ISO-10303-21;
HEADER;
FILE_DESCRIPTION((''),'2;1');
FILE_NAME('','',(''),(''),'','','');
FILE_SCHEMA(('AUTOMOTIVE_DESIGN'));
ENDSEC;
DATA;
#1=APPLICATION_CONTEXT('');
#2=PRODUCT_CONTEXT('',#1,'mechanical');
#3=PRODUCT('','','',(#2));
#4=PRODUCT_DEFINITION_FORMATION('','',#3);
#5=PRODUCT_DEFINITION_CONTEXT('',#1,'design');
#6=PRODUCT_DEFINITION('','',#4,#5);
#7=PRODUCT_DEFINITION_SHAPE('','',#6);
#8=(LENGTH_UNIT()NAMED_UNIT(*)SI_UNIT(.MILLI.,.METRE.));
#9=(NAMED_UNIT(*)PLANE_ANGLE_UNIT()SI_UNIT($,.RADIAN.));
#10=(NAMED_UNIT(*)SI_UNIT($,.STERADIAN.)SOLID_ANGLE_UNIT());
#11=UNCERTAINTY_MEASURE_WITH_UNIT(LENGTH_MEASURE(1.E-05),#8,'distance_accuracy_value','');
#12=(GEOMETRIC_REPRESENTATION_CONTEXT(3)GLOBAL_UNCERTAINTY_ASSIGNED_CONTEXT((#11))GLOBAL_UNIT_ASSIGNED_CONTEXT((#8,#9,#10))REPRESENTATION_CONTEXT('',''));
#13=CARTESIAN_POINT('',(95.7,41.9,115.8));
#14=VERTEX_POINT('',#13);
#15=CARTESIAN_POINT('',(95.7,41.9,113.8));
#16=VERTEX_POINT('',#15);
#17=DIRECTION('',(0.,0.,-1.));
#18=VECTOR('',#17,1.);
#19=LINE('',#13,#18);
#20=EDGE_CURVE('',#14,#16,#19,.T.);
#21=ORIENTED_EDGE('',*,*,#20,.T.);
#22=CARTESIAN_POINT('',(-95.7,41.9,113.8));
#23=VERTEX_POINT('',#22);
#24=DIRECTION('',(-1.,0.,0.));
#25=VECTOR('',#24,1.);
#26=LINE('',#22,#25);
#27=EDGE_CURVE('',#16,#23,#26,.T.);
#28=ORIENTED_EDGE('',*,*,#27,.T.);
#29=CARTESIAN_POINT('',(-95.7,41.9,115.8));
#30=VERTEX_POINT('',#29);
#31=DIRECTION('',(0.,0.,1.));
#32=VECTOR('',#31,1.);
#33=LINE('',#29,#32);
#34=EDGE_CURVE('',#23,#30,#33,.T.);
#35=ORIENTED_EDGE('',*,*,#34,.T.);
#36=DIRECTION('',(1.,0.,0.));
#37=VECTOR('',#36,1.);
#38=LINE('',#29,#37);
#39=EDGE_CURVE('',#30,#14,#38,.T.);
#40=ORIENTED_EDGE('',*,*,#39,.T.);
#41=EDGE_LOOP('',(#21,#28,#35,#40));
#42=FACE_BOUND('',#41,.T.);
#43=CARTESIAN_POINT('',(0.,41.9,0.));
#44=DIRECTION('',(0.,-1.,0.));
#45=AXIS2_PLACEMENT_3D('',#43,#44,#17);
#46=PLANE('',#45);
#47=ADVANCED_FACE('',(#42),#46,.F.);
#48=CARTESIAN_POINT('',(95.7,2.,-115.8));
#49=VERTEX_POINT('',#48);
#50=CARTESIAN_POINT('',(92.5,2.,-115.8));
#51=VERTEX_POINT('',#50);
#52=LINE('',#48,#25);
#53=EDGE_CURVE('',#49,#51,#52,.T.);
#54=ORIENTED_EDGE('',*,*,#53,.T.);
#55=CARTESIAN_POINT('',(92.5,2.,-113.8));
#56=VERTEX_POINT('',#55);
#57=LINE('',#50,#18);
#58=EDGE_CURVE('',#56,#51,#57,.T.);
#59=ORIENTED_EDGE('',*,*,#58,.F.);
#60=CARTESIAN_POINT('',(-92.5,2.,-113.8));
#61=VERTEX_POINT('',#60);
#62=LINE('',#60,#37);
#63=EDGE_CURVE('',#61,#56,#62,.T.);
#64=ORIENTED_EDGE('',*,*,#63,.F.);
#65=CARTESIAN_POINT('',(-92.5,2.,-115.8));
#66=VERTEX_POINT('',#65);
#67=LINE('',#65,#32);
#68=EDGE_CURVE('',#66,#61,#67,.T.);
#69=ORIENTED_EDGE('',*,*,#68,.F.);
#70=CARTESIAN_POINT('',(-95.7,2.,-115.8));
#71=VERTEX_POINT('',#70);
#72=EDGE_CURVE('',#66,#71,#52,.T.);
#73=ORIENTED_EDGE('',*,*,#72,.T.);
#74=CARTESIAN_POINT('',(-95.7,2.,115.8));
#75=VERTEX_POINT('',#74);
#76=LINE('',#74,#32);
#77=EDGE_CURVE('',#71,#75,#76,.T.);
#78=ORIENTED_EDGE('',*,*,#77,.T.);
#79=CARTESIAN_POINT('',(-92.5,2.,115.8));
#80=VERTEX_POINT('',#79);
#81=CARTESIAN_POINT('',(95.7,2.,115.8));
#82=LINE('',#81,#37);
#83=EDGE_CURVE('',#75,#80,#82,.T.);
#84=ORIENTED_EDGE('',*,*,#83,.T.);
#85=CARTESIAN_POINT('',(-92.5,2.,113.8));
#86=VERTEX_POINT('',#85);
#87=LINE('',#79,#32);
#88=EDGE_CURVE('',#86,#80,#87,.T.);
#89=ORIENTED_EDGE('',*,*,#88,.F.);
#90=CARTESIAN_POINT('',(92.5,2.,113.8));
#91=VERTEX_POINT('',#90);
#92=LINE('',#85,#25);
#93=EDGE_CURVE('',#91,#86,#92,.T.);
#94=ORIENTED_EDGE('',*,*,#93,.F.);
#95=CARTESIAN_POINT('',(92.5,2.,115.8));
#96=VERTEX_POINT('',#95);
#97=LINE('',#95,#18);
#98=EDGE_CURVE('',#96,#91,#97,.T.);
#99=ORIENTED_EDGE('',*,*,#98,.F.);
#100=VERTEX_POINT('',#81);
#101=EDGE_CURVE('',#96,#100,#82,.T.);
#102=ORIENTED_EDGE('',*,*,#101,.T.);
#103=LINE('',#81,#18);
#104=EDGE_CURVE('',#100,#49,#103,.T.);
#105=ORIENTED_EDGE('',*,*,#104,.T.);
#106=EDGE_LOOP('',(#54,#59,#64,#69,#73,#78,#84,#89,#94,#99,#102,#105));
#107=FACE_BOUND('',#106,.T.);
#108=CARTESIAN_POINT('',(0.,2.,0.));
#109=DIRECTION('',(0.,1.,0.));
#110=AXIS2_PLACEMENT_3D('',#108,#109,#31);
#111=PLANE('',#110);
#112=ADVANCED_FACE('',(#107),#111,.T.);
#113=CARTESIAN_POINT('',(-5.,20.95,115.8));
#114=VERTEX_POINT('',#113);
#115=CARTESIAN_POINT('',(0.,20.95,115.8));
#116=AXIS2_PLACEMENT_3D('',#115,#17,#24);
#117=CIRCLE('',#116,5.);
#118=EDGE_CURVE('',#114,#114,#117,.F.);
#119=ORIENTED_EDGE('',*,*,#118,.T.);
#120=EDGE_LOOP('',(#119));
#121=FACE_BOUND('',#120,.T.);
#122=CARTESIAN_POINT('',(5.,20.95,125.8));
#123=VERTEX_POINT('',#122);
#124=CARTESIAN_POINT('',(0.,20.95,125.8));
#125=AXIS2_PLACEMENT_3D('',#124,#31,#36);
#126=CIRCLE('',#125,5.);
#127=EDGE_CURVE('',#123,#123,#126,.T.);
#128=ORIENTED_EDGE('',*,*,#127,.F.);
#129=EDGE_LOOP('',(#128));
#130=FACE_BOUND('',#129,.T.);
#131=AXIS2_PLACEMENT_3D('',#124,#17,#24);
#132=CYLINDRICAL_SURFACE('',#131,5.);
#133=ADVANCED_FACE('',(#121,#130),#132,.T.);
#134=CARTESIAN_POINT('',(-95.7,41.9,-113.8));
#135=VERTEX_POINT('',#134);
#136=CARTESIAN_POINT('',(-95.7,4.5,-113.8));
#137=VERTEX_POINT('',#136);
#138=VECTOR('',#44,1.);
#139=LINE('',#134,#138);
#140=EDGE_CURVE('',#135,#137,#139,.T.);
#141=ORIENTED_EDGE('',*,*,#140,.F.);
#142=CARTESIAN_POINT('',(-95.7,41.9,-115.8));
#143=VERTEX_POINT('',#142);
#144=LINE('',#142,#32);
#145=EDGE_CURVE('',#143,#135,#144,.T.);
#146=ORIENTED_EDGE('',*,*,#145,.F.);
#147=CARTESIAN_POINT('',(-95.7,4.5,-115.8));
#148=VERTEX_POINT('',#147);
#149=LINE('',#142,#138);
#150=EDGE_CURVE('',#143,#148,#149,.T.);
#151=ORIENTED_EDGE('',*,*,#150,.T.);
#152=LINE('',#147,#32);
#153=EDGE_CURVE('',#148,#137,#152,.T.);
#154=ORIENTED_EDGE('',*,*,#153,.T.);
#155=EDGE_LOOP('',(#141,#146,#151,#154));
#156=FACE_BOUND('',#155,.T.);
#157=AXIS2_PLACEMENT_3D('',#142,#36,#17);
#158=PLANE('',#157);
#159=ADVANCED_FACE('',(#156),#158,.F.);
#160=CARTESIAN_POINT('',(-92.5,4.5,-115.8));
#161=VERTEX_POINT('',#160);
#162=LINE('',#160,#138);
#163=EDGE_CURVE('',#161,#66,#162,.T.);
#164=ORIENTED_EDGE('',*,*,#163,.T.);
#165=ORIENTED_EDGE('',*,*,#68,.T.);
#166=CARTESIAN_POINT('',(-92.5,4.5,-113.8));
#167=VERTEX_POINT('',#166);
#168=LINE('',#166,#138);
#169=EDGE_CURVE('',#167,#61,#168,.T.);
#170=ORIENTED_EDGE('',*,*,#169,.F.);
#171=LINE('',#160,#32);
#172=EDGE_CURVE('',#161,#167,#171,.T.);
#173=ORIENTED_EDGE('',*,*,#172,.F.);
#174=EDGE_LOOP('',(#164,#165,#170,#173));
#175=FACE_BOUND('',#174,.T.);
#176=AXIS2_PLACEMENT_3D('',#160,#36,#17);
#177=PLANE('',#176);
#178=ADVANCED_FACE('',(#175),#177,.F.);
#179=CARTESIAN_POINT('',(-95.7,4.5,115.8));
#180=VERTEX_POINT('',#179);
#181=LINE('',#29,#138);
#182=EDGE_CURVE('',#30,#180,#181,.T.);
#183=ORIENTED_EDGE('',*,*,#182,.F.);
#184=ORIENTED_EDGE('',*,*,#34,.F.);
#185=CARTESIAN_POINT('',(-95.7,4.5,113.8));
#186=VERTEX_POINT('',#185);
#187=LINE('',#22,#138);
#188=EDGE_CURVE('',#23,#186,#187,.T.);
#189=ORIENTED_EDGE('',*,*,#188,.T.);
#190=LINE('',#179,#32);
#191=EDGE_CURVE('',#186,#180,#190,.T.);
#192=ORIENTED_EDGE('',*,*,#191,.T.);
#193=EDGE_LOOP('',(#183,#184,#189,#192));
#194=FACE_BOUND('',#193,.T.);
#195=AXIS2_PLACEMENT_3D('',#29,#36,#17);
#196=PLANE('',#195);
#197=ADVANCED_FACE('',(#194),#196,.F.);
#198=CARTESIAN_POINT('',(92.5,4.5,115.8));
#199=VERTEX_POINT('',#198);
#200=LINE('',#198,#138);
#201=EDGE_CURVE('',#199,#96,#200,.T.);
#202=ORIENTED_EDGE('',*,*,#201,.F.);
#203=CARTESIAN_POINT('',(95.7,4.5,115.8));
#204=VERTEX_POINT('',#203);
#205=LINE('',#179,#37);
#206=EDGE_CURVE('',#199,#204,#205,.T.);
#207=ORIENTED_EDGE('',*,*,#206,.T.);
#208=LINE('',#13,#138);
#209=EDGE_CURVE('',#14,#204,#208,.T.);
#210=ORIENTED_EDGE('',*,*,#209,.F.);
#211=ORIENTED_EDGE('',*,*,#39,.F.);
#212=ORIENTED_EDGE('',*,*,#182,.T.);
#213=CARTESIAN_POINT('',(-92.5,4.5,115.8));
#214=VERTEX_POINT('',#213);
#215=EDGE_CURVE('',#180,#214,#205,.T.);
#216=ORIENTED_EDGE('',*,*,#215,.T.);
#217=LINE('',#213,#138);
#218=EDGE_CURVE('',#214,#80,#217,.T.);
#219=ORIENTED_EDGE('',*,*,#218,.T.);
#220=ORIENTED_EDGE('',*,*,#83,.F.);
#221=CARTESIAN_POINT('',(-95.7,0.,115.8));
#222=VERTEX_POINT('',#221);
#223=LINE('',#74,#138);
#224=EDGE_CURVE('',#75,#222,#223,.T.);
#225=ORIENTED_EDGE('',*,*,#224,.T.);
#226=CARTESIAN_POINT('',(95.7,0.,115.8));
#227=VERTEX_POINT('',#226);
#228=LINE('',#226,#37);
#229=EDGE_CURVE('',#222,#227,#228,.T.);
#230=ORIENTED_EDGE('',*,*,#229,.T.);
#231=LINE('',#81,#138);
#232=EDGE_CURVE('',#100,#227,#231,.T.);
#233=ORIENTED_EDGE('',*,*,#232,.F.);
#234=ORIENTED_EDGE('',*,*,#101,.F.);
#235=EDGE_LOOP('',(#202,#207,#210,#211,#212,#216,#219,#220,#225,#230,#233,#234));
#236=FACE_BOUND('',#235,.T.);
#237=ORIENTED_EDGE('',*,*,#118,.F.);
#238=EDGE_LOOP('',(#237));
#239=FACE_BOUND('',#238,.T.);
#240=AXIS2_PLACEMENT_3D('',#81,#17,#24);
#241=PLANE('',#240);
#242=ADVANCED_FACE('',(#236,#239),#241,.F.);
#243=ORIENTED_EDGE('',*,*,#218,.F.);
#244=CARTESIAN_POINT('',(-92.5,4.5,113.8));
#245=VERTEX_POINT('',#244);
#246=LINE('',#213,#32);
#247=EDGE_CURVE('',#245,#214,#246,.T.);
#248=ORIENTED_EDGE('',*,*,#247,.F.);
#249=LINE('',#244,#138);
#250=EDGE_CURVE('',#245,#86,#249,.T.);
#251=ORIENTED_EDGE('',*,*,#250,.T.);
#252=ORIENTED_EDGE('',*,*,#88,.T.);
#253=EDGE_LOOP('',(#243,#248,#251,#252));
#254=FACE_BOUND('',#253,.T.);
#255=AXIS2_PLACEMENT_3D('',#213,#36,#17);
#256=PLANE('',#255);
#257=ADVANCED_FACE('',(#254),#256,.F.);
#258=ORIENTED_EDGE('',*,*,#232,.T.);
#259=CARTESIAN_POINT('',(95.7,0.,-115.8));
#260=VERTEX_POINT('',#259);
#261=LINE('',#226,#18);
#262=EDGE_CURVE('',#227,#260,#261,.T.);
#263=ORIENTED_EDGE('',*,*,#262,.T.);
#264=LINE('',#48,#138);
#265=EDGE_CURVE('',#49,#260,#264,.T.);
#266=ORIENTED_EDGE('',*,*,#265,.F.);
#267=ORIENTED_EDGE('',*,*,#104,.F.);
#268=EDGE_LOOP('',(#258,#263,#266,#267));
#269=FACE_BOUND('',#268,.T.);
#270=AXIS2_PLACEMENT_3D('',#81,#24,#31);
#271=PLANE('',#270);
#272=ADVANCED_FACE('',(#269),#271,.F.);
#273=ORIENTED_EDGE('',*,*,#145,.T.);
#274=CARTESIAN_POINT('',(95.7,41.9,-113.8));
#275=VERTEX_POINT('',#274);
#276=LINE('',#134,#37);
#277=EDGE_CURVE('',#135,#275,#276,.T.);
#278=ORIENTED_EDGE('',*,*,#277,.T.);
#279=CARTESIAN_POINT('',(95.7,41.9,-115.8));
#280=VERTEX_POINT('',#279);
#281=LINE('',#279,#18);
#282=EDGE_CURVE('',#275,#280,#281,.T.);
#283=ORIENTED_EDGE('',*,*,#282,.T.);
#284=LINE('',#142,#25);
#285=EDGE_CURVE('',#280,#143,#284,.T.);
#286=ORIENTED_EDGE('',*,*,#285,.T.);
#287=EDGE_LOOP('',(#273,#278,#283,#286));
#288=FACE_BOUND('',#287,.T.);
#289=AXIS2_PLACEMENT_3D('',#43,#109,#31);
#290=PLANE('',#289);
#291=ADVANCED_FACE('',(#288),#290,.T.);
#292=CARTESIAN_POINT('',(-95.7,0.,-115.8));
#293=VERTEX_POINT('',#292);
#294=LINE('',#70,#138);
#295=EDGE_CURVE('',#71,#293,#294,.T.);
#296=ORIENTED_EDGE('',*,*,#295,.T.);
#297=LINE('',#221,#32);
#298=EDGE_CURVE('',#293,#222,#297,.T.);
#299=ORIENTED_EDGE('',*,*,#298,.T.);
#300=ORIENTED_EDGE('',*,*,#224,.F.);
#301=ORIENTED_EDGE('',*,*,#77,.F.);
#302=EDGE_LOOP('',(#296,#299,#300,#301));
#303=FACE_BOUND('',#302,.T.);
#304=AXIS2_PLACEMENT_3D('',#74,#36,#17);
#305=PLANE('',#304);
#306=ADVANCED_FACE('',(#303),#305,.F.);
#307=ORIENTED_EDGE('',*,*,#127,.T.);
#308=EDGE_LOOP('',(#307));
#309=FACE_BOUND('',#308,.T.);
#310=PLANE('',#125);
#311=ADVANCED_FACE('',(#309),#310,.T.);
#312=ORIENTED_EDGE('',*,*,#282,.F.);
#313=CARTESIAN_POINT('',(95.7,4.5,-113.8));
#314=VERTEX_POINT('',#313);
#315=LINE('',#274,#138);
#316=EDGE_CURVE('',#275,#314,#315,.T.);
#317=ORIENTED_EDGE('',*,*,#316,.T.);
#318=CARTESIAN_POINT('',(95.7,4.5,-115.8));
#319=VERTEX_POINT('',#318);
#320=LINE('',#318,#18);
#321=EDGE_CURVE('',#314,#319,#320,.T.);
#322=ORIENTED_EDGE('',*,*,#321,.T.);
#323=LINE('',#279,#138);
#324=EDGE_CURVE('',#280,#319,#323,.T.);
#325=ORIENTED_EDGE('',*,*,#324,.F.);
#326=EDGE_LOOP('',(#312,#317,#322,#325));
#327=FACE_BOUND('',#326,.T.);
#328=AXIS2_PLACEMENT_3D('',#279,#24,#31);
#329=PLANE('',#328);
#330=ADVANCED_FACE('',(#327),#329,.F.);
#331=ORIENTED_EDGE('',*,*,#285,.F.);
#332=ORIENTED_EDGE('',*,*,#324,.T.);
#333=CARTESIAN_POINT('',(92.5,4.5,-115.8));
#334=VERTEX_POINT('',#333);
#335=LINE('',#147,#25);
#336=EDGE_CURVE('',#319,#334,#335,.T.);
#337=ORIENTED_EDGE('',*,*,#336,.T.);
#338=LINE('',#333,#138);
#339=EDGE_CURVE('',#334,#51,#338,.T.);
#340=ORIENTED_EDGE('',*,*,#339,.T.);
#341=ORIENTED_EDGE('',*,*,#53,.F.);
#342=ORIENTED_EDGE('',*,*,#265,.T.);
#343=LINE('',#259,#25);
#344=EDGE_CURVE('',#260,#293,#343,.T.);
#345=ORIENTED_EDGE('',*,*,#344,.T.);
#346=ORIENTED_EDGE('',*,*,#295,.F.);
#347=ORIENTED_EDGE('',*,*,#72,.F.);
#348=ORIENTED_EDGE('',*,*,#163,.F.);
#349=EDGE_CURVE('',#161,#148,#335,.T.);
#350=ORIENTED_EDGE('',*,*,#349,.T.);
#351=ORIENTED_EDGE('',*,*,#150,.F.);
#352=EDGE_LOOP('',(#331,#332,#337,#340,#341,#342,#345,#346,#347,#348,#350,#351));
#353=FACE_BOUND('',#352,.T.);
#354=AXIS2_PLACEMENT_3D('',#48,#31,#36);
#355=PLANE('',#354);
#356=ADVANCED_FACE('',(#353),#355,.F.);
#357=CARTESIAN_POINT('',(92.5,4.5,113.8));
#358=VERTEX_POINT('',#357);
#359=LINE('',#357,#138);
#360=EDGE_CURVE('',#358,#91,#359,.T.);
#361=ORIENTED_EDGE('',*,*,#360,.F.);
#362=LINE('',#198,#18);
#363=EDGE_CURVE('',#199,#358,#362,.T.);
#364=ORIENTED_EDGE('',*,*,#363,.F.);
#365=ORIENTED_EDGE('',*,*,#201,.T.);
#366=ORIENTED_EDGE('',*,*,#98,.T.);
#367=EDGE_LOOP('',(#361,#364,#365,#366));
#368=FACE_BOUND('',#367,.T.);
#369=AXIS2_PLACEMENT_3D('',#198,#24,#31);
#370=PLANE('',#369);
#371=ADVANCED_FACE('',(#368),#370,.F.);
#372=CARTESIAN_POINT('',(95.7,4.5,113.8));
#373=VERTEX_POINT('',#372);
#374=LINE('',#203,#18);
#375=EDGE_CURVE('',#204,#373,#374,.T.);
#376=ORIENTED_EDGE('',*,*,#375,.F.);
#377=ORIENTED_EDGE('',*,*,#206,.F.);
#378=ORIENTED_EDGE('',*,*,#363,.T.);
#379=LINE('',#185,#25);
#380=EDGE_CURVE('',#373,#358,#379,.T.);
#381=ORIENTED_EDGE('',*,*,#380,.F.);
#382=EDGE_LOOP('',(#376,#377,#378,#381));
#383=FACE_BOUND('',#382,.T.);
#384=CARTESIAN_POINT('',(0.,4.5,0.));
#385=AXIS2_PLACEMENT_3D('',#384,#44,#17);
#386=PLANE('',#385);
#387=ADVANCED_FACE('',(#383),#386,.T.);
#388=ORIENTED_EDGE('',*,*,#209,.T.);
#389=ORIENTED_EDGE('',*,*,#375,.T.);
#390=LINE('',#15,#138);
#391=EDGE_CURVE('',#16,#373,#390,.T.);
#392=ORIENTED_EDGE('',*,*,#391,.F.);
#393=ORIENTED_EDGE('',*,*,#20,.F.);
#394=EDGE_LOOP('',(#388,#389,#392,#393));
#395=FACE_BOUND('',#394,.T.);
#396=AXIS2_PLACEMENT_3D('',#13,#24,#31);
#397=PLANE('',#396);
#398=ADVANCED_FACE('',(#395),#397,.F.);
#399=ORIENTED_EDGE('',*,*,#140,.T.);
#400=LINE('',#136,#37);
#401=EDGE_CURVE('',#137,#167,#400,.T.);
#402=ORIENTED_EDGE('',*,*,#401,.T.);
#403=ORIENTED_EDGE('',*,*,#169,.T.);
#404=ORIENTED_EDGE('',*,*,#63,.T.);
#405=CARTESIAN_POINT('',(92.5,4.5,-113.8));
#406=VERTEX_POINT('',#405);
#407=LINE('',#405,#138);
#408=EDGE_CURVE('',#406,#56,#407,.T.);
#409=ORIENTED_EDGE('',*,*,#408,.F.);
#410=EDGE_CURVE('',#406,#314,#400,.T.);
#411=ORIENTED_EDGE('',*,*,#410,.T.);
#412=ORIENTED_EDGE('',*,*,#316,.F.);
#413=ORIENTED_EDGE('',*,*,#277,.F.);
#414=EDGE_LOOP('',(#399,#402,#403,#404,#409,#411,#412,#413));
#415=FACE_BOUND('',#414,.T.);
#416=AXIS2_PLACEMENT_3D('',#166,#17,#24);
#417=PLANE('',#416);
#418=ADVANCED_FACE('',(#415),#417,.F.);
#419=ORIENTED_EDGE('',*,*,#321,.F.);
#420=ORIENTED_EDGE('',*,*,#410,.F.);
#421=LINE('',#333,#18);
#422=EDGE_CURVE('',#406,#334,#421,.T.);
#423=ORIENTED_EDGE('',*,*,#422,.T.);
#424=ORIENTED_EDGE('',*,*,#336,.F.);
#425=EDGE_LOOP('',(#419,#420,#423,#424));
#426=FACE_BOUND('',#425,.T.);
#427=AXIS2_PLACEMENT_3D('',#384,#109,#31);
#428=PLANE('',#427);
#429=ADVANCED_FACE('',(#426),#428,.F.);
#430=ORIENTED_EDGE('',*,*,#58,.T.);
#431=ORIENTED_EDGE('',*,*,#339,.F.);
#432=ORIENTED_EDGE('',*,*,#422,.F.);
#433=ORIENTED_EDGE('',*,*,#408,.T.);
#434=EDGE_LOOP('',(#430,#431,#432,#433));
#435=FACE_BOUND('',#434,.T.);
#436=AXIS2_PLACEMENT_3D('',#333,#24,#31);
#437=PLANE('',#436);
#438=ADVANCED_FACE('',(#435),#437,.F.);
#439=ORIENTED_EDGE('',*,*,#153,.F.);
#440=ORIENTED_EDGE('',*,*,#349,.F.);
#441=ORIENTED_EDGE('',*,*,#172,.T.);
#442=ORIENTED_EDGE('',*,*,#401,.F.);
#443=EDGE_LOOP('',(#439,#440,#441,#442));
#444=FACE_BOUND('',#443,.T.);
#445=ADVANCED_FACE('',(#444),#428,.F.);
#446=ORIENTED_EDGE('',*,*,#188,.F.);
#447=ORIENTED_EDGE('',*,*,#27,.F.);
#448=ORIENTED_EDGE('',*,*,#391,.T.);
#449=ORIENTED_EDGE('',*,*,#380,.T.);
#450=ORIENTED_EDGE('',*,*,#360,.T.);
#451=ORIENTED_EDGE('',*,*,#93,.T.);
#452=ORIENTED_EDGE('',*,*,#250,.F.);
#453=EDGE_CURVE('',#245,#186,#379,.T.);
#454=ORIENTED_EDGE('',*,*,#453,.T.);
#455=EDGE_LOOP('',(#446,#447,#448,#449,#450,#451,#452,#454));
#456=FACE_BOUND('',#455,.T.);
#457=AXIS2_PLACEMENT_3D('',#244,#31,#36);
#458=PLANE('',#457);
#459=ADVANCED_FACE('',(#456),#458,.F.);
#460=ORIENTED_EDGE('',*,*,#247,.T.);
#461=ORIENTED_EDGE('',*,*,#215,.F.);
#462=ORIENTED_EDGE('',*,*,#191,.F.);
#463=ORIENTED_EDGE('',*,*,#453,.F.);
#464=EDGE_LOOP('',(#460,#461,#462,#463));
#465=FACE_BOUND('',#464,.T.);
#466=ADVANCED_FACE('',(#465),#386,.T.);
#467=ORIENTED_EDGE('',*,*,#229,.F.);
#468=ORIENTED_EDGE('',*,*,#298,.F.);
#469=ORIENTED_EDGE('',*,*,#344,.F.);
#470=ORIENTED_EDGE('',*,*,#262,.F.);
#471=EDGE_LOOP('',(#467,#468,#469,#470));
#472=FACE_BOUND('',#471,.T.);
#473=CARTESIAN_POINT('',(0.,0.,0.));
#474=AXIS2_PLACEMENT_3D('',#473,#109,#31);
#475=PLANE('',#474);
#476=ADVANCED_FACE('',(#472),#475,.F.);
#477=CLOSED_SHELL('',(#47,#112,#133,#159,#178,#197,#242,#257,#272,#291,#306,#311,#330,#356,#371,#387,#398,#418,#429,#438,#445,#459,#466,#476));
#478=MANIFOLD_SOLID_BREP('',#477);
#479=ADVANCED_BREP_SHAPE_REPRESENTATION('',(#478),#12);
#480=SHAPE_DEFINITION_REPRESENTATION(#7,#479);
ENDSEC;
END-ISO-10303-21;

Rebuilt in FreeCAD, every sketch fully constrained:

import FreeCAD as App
import Part
import Sketcher
Q = App.Units.Quantity


def add_polygon(sketch, points):
    """Adds a closed chain of lines whose ends are joined by coincident constraints."""
    first, n = sketch.GeometryCount, len(points)
    for a, b in zip(points, points[1:] + points[:1]):
        sketch.addGeometry(Part.LineSegment(App.Vector(*a, 0), App.Vector(*b, 0)), False)
    for i in range(n):
        sketch.addConstraint(Sketcher.Constraint("Coincident", first + i, 2, first + (i + 1) % n, 1))

doc = App.newDocument("Part")
body = doc.addObject("PartDesign::Body", "Body")

# Sketch on XZ plane
sketch1 = body.newObject("Sketcher::SketchObject", "Sketch")
sketch1.AttachmentSupport = (doc.getObject("XZ_Plane"), [""])
sketch1.MapMode = "FlatFace"
add_polygon(sketch1, [(-96, -116), (-96, 116), (96, 116), (96, -116)])  # lines 0-3
sketch1.addConstraint([
    Sketcher.Constraint("Vertical", 0),
    Sketcher.Constraint("Horizontal", 1),
    Sketcher.Constraint("Vertical", 2),
    Sketcher.Constraint("Horizontal", 3),
    Sketcher.Constraint("Symmetric", 0, 2, 2, 2, -1, 1),
    Sketcher.Constraint("DistanceX", 1, 1, 1, 2, Q("191.4 mm")),
    Sketcher.Constraint("DistanceY", 0, 1, 0, 2, Q("231.6 mm")),
])
pad1 = body.newObject("PartDesign::Pad", "Pad")
pad1.Profile = sketch1
pad1.Length = 2
pad1.Reversed = True

# Sketch on XZ plane
sketch2 = body.newObject("Sketcher::SketchObject", "Sketch001")
sketch2.AttachmentSupport = (doc.getObject("XZ_Plane"), [""])
sketch2.MapMode = "FlatFace"
sketch2.AttachmentOffset = App.Placement(App.Vector(0, 0, -2), App.Rotation())
add_polygon(sketch2, [(-92.5, -115.8), (-92.5, -113.8), (92.5, -113.8), (92.5, -115.8)])  # lines 0-3
add_polygon(sketch2, [(-92.5, 113.8), (-92.5, 115.8), (92.5, 115.8), (92.5, 113.8)])  # lines 4-7
sketch2.addConstraint([
    Sketcher.Constraint("Vertical", 0),
    Sketcher.Constraint("Horizontal", 1),
    Sketcher.Constraint("Vertical", 2),
    Sketcher.Constraint("Horizontal", 3),
    Sketcher.Constraint("Vertical", 4),
    Sketcher.Constraint("Horizontal", 5),
    Sketcher.Constraint("Vertical", 6),
    Sketcher.Constraint("Horizontal", 7),
    Sketcher.Constraint("Symmetric", 2, 2, 4, 2, -1, 1),
    Sketcher.Constraint("Symmetric", 0, 2, 6, 2, -1, 1),
    Sketcher.Constraint("Vertical", 3, 2, 4, 2),
    Sketcher.Constraint("DistanceX", 1, 1, 1, 2, Q("185 mm")),
    Sketcher.Constraint("DistanceY", 0, 1, 0, 2, Q("2 mm")),
    Sketcher.Constraint("DistanceY", 0, 2, -1, 1, Q("113.8 mm")),
])
pad2 = body.newObject("PartDesign::Pad", "Pad001")
pad2.Profile = sketch2
pad2.Length = 2.5
pad2.Reversed = True

# Sketch on XZ plane
sketch3 = body.newObject("Sketcher::SketchObject", "Sketch002")
sketch3.AttachmentSupport = (doc.getObject("XZ_Plane"), [""])
sketch3.MapMode = "FlatFace"
sketch3.AttachmentOffset = App.Placement(App.Vector(0, 0, -4.5), App.Rotation())
add_polygon(sketch3, [(-95.7, -115.8), (-95.7, -113.8), (95.7, -113.8), (95.7, -115.8)])  # lines 0-3
add_polygon(sketch3, [(-95.7, 113.8), (-95.7, 115.8), (95.7, 115.8), (95.7, 113.8)])  # lines 4-7
sketch3.addConstraint([
    Sketcher.Constraint("Vertical", 0),
    Sketcher.Constraint("Horizontal", 1),
    Sketcher.Constraint("Vertical", 2),
    Sketcher.Constraint("Horizontal", 3),
    Sketcher.Constraint("Vertical", 4),
    Sketcher.Constraint("Horizontal", 5),
    Sketcher.Constraint("Vertical", 6),
    Sketcher.Constraint("Horizontal", 7),
    Sketcher.Constraint("Symmetric", 2, 2, 4, 2, -1, 1),
    Sketcher.Constraint("Symmetric", 0, 2, 6, 2, -1, 1),
    Sketcher.Constraint("Vertical", 3, 2, 4, 2),
    Sketcher.Constraint("DistanceY", 0, 1, 0, 2, Q("2 mm")),
    Sketcher.Constraint("DistanceX", 1, 1, 1, 2, Q("191.4 mm")),
    Sketcher.Constraint("DistanceY", 0, 2, -1, 1, Q("113.8 mm")),
])
pad3 = body.newObject("PartDesign::Pad", "Pad002")
pad3.Profile = sketch3
pad3.Length = 37.4
pad3.Reversed = True

# Sketch on XY plane
sketch4 = body.newObject("Sketcher::SketchObject", "Sketch003")
sketch4.AttachmentSupport = (doc.getObject("XY_Plane"), [""])
sketch4.MapMode = "FlatFace"
sketch4.AttachmentOffset = App.Placement(App.Vector(0, 0, 115.8), App.Rotation())
sketch4.addGeometry(Part.Circle(App.Vector(0, 21, 0), App.Vector(0, 0, 1), 5), False)
sketch4.addConstraint([
    Sketcher.Constraint("PointOnObject", 0, 3, -2),
    Sketcher.Constraint("Diameter", 0, Q("10 mm")),
    Sketcher.Constraint("DistanceY", -1, 1, 0, 3, Q("20.95 mm")),
])
pad4 = body.newObject("PartDesign::Pad", "Pad003")
pad4.Profile = sketch4
pad4.Length = 10

doc.recompute()
